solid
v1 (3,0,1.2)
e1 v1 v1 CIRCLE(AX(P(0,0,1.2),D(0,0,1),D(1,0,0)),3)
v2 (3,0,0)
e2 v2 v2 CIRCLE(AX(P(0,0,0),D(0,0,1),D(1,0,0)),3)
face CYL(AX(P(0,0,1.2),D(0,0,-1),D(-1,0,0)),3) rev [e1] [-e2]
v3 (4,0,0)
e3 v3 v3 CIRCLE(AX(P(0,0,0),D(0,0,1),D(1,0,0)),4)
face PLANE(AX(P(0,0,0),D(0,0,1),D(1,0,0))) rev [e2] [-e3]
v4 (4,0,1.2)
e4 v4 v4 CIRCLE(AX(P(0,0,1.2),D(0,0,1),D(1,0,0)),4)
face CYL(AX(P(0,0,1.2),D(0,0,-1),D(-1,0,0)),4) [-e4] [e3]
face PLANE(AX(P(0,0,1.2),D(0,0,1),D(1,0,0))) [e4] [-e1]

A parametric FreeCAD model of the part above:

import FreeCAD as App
import Part
import Sketcher
from FreeCAD import Vector
Q = App.Units.Quantity

doc = App.newDocument("Part")
body = doc.addObject("PartDesign::Body", "Body")

# Sketch on XY plane
sketch1 = body.newObject("Sketcher::SketchObject", "Sketch")
sketch1.AttachmentSupport = (doc.getObject("XY_Plane"), [""])
sketch1.MapMode = "FlatFace"
sketch1.addGeometry([
    Part.Circle(Vector(0, 0, 0), Vector(0, 0, 1), 4),
    Part.Circle(Vector(0, 0, 0), Vector(0, 0, 1), 3),
], False)
sketch1.addConstraint([
    Sketcher.Constraint("Coincident", 0, 3, -1, 1),
    Sketcher.Constraint("Coincident", 1, 3, -1, 1),
    Sketcher.Constraint("Diameter", 0, Q("8 mm")),
    Sketcher.Constraint("Diameter", 1, Q("6 mm")),
])
pad1 = body.newObject("PartDesign::Pad", "Pad")
pad1.Profile = sketch1
pad1.Length = 1.2

doc.recompute()
